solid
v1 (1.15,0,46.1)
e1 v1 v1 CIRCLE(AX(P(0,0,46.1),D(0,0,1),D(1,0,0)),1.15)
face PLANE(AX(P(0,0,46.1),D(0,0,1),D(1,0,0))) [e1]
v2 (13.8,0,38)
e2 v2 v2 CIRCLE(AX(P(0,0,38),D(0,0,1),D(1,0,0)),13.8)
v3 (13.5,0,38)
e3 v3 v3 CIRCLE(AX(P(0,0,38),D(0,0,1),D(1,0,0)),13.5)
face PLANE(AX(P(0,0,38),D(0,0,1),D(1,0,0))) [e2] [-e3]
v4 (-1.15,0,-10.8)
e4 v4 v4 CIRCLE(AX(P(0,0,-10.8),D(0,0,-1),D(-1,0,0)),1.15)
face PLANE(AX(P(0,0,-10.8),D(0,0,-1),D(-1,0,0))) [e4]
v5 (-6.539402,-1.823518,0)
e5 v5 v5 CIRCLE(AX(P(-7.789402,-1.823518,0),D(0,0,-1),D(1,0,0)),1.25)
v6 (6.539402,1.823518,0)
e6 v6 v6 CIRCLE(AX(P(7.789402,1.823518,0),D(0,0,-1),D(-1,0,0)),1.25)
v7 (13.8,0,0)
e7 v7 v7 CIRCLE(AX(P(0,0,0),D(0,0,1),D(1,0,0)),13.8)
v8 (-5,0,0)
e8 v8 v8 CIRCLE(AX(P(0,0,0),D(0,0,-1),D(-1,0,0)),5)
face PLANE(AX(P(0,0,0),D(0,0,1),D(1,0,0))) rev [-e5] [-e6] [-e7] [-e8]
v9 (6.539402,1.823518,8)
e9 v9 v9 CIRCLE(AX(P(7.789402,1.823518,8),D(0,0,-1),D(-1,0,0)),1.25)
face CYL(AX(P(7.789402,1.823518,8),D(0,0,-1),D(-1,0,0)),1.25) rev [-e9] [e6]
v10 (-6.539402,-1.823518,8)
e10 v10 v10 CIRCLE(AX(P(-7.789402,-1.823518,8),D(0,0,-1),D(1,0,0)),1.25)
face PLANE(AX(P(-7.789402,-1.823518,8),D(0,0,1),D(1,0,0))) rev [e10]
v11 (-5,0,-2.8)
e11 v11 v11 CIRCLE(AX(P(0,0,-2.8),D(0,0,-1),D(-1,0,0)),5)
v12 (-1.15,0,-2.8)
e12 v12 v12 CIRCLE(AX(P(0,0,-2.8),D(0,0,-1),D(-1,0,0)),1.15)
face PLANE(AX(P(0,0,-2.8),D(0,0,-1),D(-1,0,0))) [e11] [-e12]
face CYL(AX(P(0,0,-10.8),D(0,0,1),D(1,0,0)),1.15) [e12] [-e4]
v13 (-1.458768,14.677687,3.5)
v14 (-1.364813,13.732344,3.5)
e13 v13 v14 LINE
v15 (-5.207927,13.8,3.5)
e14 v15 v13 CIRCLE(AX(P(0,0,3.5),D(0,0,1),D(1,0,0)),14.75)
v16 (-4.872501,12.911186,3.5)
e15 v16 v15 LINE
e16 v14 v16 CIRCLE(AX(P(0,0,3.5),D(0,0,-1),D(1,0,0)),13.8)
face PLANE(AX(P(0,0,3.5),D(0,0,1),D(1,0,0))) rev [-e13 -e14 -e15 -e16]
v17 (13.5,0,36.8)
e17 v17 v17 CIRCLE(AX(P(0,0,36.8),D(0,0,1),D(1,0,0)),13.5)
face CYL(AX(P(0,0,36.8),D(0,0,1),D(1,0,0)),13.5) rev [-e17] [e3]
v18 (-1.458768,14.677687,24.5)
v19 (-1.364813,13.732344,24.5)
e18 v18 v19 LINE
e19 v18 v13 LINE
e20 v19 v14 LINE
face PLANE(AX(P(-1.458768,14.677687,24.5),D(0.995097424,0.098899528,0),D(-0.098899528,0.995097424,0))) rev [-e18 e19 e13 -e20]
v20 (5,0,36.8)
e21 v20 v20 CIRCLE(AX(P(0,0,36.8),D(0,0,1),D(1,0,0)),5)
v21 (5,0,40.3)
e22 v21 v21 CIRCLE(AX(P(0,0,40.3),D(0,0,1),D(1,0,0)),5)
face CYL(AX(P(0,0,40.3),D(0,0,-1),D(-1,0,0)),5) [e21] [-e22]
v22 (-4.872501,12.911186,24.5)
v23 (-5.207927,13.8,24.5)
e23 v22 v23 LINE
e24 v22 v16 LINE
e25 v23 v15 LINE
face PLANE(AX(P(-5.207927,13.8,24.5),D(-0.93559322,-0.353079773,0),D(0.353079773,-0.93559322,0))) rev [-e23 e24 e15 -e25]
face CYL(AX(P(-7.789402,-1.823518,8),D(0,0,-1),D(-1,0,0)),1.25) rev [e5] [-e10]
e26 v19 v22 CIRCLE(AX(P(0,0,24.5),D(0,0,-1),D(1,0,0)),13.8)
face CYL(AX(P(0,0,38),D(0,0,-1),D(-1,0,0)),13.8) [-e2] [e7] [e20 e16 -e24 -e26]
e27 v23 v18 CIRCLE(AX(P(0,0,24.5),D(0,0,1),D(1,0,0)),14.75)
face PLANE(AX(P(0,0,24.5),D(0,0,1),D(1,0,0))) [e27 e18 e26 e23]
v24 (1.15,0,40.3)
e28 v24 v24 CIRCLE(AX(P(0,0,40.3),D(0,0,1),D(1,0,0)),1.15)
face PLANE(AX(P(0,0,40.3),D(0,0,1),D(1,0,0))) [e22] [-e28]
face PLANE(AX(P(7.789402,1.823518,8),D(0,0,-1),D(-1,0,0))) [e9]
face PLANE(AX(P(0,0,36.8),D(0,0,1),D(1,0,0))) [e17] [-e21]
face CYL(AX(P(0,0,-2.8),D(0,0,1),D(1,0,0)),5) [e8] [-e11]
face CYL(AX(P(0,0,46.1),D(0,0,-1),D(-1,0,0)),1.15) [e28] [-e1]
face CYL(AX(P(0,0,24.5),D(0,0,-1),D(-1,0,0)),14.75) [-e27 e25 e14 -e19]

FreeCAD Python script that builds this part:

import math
import FreeCAD as App
import Part
import Sketcher
Q = App.Units.Quantity

doc = App.newDocument("Part")
body = doc.addObject("PartDesign::Body", "Body")

sketch1 = body.newObject("Sketcher::SketchObject", "Sketch")
sketch1.AttachmentSupport = (doc.getObject("XY_Plane"), [""])
sketch1.MapMode = "FlatFace"
sketch1.addGeometry(Part.Circle(App.Vector(0, 0, 0), App.Vector(0, 0, 1), 14), False)
sketch1.addConstraint(Sketcher.Constraint("Coincident", 0, 3, -1, 1))
sketch1.addConstraint(Sketcher.Constraint("Diameter", 0, Q("27.6 mm")))
pad1 = body.newObject("PartDesign::Pad", "Pad")
pad1.Profile = sketch1
pad1.Length = 38

sketch2 = body.newObject("Sketcher::SketchObject", "Sketch001")
sketch2.AttachmentSupport = (doc.getObject("XY_Plane"), [""])
sketch2.MapMode = "FlatFace"
sketch2.AttachmentOffset = App.Placement(App.Vector(0, 0, 3.5), App.Rotation())
sketch2.addGeometry(Part.LineSegment(App.Vector(-1.5, 14.7, 0), App.Vector(-1.4, 13.7, 0)), False)
sketch2.addGeometry(Part.ArcOfCircle(Part.Circle(App.Vector(0, 0, 0), App.Vector(0, 0, 1), 13.8), math.radians(111), math.radians(456)), False)
sketch2.addGeometry(Part.LineSegment(App.Vector(-4.9, 12.9, 0), App.Vector(-5.2, 13.8, 0)), False)
sketch2.addGeometry(Part.ArcOfCircle(Part.Circle(App.Vector(0, 0, 0), App.Vector(0, 0, 1), 14.8), math.radians(111), math.radians(456)), False)
sketch2.addConstraint(Sketcher.Constraint("Coincident", 0, 2, 1, 2))
sketch2.addConstraint(Sketcher.Constraint("Coincident", 1, 1, 2, 1))
sketch2.addConstraint(Sketcher.Constraint("Coincident", 2, 2, 3, 1))
sketch2.addConstraint(Sketcher.Constraint("Coincident", 3, 2, 0, 1))
sketch2.addConstraint(Sketcher.Constraint("Coincident", 1, 3, -1, 1))
sketch2.addConstraint(Sketcher.Constraint("Coincident", 3, 3, -1, 1))
sketch2.addConstraint(Sketcher.Constraint("Radius", 1, Q("13.8 mm")))
sketch2.addConstraint(Sketcher.Constraint("Radius", 3, Q("14.75 mm")))
sketch2.addConstraint(Sketcher.Constraint("DistanceY", -1, 1, 2, 2, Q("13.8 mm")))
sketch2.addConstraint(Sketcher.Constraint("DistanceX", 1, 1, -1, 1, Q("4.872501 mm")))
sketch2.addConstraint(Sketcher.Constraint("DistanceY", 1, 1, 3, 2, Q("1.766501 mm")))
sketch2.addConstraint(Sketcher.Constraint("DistanceY", 1, 1, 0, 2, Q("0.821158 mm")))
pad2 = body.newObject("PartDesign::Pad", "Pad001")
pad2.Profile = sketch2
pad2.Length = 21

sketch3 = body.newObject("Sketcher::SketchObject", "Sketch002")
sketch3.AttachmentSupport = (doc.getObject("XY_Plane"), [""])
sketch3.MapMode = "FlatFace"
sketch3.addGeometry(Part.Circle(App.Vector(0, 0, 0), App.Vector(0, 0, 1), 5), False)
sketch3.addConstraint(Sketcher.Constraint("Coincident", 0, 3, -1, 1))
sketch3.addConstraint(Sketcher.Constraint("Diameter", 0, Q("10 mm")))
pad3 = body.newObject("PartDesign::Pad", "Pad002")
pad3.Profile = sketch3
pad3.Length = 2.8
pad3.Reversed = True

sketch4 = body.newObject("Sketcher::SketchObject", "Sketch003")
sketch4.AttachmentSupport = (doc.getObject("XY_Plane"), [""])
sketch4.MapMode = "FlatFace"
sketch4.AttachmentOffset = App.Placement(App.Vector(0, 0, 38), App.Rotation())
sketch4.addGeometry(Part.Circle(App.Vector(0, 0, 0), App.Vector(0, 0, 1), 14), False)
sketch4.addConstraint(Sketcher.Constraint("Coincident", 0, 3, -1, 1))
sketch4.addConstraint(Sketcher.Constraint("Diameter", 0, Q("27 mm")))
pocket1 = body.newObject("PartDesign::Pocket", "Pocket")
pocket1.Profile = sketch4
pocket1.Length = 1.2

sketch5 = body.newObject("Sketcher::SketchObject", "Sketch004")
sketch5.AttachmentSupport = (doc.getObject("XY_Plane"), [""])
sketch5.MapMode = "FlatFace"
sketch5.AttachmentOffset = App.Placement(App.Vector(0, 0, 36.8), App.Rotation())
sketch5.addGeometry(Part.Circle(App.Vector(0, 0, 0), App.Vector(0, 0, 1), 5), False)
sketch5.addConstraint(Sketcher.Constraint("Coincident", 0, 3, -1, 1))
sketch5.addConstraint(Sketcher.Constraint("Diameter", 0, Q("10 mm")))
pad4 = body.newObject("PartDesign::Pad", "Pad003")
pad4.Profile = sketch5
pad4.Length = 3.5

sketch6 = body.newObject("Sketcher::SketchObject", "Sketch005")
sketch6.AttachmentSupport = (doc.getObject("XY_Plane"), [""])
sketch6.MapMode = "FlatFace"
sketch6.AttachmentOffset = App.Placement(App.Vector(0, 0, 40.3), App.Rotation())
sketch6.addGeometry(Part.Circle(App.Vector(0, 0, 0), App.Vector(0, 0, 1), 1.1), False)
sketch6.addConstraint(Sketcher.Constraint("Coincident", 0, 3, -1, 1))
sketch6.addConstraint(Sketcher.Constraint("Diameter", 0, Q("2.3 mm")))
pad5 = body.newObject("PartDesign::Pad", "Pad004")
pad5.Profile = sketch6
pad5.Length = 5.8

sketch7 = body.newObject("Sketcher::SketchObject", "Sketch006")
sketch7.AttachmentSupport = (doc.getObject("XY_Plane"), [""])
sketch7.MapMode = "FlatFace"
sketch7.AttachmentOffset = App.Placement(App.Vector(0, 0, -2.8), App.Rotation())
sketch7.addGeometry(Part.Circle(App.Vector(0, 0, 0), App.Vector(0, 0, 1), 1.1), False)
sketch7.addConstraint(Sketcher.Constraint("Coincident", 0, 3, -1, 1))
sketch7.addConstraint(Sketcher.Constraint("Diameter", 0, Q("2.3 mm")))
pad6 = body.newObject("PartDesign::Pad", "Pad005")
pad6.Profile = sketch7
pad6.Length = 8
pad6.Reversed = True

sketch8 = body.newObject("Sketcher::SketchObject", "Sketch007")
sketch8.AttachmentSupport = (doc.getObject("XY_Plane"), [""])
sketch8.MapMode = "FlatFace"
sketch8.addGeometry(Part.Circle(App.Vector(7.8, 1.8, 0), App.Vector(0, 0, 1), 1.2), False)
sketch8.addGeometry(Part.Circle(App.Vector(-7.8, -1.8, 0), App.Vector(0, 0, 1), 1.2), False)
sketch8.addConstraint(Sketcher.Constraint("Equal", 0, 1))
sketch8.addConstraint(Sketcher.Constraint("Symmetric", 0, 3, 1, 3, -1, 1))
sketch8.addConstraint(Sketcher.Constraint("Diameter", 0, Q("2.5 mm")))
sketch8.addConstraint(Sketcher.Constraint("DistanceX", -1, 1, 0, 3, Q("7.789402 mm")))
sketch8.addConstraint(Sketcher.Constraint("DistanceY", -1, 1, 0, 3, Q("1.823518 mm")))
pocket2 = body.newObject("PartDesign::Pocket", "Pocket001")
pocket2.Profile = sketch8
pocket2.Length = 8
pocket2.Reversed = True

doc.recompute()
